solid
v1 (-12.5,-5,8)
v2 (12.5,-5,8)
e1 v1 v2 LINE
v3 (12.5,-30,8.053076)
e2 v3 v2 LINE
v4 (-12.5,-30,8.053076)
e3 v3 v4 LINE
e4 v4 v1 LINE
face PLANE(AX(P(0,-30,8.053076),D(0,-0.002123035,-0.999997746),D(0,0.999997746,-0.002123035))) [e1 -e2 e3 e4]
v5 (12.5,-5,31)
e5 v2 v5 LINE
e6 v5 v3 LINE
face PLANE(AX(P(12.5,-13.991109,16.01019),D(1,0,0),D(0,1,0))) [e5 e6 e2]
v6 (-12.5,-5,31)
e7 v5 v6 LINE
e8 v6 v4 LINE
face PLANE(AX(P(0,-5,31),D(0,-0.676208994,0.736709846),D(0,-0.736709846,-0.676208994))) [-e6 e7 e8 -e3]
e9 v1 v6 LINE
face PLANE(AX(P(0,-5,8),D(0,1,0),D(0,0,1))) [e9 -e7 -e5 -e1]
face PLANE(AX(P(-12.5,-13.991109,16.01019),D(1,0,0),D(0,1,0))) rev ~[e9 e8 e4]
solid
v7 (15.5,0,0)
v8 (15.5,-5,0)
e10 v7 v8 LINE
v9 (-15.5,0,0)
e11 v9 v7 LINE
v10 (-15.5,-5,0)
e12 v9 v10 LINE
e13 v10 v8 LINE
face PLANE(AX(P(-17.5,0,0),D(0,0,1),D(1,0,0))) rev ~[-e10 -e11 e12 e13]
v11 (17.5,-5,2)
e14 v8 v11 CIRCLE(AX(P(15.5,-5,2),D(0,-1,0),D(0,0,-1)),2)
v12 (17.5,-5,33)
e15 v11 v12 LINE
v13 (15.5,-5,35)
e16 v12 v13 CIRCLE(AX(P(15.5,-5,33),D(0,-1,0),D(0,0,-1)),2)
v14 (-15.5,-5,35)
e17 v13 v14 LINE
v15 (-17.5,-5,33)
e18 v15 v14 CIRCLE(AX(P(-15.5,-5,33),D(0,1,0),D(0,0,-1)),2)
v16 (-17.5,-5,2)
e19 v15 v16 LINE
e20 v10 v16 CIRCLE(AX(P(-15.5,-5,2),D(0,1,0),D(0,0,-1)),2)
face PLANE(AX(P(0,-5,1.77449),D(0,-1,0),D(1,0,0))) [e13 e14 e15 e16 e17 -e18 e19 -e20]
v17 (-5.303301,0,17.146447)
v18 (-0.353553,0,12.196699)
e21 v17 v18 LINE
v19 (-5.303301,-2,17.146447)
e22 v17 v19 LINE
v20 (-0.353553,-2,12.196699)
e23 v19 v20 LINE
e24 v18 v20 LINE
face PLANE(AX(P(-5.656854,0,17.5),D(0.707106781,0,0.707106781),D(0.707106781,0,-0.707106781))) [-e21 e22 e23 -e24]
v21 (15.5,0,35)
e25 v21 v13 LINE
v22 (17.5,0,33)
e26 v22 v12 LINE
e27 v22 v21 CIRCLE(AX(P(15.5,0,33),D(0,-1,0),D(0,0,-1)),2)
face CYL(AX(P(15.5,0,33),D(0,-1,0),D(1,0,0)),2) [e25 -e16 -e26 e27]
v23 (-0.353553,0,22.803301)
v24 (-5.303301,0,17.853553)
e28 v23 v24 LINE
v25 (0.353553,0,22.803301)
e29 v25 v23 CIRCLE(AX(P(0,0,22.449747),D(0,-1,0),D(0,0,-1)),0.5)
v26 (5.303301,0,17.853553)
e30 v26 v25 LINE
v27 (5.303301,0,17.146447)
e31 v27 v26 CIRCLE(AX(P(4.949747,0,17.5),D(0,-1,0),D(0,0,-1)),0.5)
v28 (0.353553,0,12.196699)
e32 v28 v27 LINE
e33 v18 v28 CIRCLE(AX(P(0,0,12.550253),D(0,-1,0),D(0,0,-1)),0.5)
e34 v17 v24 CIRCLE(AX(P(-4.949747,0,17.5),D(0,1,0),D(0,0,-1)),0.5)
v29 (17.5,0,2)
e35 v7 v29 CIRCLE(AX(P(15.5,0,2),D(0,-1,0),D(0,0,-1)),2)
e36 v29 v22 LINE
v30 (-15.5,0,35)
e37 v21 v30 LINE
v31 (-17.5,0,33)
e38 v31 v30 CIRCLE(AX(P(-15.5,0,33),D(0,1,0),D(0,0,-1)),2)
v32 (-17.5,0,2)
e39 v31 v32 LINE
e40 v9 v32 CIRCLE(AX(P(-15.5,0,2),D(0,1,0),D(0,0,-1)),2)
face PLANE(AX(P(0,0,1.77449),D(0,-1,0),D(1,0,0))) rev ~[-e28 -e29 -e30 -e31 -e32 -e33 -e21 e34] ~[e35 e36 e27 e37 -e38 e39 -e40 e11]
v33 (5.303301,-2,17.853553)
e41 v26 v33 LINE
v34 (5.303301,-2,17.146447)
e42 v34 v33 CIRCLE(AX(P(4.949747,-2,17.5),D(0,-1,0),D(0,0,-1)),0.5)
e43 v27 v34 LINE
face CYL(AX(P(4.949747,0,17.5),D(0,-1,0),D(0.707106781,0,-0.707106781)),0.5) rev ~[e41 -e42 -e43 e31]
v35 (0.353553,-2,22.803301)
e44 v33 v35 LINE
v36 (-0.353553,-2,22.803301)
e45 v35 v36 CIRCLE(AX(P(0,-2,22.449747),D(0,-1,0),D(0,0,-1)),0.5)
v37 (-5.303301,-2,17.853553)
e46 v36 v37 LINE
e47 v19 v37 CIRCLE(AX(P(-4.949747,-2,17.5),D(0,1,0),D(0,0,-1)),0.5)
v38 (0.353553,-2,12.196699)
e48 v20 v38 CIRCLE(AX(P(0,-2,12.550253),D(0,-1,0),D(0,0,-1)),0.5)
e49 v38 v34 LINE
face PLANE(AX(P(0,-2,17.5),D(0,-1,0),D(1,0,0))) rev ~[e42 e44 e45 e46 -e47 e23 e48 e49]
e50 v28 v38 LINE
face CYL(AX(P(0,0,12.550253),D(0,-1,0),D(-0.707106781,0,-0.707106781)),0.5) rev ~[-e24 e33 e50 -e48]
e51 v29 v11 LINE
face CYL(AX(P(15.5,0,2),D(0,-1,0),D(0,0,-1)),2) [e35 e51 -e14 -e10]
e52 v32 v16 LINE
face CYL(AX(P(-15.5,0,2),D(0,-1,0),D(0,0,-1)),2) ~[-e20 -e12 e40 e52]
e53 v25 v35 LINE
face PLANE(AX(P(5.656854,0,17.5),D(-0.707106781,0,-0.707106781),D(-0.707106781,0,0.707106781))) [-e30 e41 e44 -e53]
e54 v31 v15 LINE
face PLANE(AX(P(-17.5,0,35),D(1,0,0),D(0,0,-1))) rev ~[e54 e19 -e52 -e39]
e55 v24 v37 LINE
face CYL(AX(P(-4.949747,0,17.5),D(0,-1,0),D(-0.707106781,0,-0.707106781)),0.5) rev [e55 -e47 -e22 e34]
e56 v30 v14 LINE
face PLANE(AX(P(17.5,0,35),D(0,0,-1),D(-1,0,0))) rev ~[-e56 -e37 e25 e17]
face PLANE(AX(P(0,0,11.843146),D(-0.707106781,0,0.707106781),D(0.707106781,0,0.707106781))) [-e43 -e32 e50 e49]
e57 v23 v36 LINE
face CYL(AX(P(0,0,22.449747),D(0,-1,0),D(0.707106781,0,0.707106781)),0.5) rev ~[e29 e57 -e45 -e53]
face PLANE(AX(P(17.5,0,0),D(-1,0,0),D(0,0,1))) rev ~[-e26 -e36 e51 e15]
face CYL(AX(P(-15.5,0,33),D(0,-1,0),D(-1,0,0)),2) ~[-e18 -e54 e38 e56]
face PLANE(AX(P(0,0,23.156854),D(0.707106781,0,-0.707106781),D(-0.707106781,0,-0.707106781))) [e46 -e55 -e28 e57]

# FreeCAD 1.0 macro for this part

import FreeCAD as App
import Part
import Sketcher
from FreeCAD import Vector


def edges_at(feature, points):
    """Names of the edges that pass closest to the given points."""
    edges = feature.Shape.Edges
    near = lambda p: min(range(len(edges)), key=lambda i: edges[i].distToShape(Part.Vertex(*p))[0])
    return sorted({f"Edge{near(p) + 1}" for p in points})

doc = App.newDocument("Part")
params = doc.addObject("Spreadsheet::Sheet", "Params")
for row, (alias, value) in enumerate([
    ("sketch1_width", "35 mm"),
    ("pad1_length", "5 mm"),
    ("sketch2_length", "8 mm"),
    ("pocket1_length", "2 mm"),
    ("fillet_radius", "2 mm"),
    ("fillet2_radius", "0.5 mm"),
    ("sketch3_height", "23 mm"),
    ("pad2_length", "25 mm"),
], start=1):
    params.set(f"A{row}", alias)
    params.set(f"B{row}", "=" + value)
    params.setAlias(f"B{row}", alias)

body = doc.addObject("PartDesign::Body", "Body")

# Sketch on XZ plane
sketch1 = doc.addObject("Sketcher::SketchObject", "Sketch")
body.addObject(sketch1)
sketch1.AttachmentSupport = (doc.XZ_Plane, [""])
sketch1.MapMode = "FlatFace"
sketch1.addGeometry([
    Part.LineSegment(Vector(-17.5, 0, 0), Vector(17.5, 0, 0)),
    Part.LineSegment(Vector(17.5, 0, 0), Vector(17.5, 35, 0)),
    Part.LineSegment(Vector(17.5, 35, 0), Vector(-17.5, 35, 0)),
    Part.LineSegment(Vector(-17.5, 35, 0), Vector(-17.5, 0, 0)),
], False)
sketch1.addConstraint([
    Sketcher.Constraint("Coincident", 0, 2, 1, 1),
    Sketcher.Constraint("Coincident", 1, 2, 2, 1),
    Sketcher.Constraint("Coincident", 2, 2, 3, 1),
    Sketcher.Constraint("Coincident", 3, 2, 0, 1),
    Sketcher.Constraint("Horizontal", 0),
    Sketcher.Constraint("Vertical", 1),
    Sketcher.Constraint("Horizontal", 2),
    Sketcher.Constraint("Vertical", 3),
    Sketcher.Constraint("Symmetric", 0, 2, 3, 2, -1, 1),
    Sketcher.Constraint("Equal", 2, 1),
    Sketcher.Constraint("DistanceX", 0, 1, 0, 2, 35.0),
])
sketch1.setExpression("Constraints[10]", "Params.sketch1_width")
pad1 = doc.addObject("PartDesign::Pad", "Pad")
body.addObject(pad1)
pad1.Profile = sketch1
pad1.setExpression("Length", "Params.pad1_length")

# Sketch on XZ plane
sketch2 = doc.addObject("Sketcher::SketchObject", "Sketch001")
body.addObject(sketch2)
sketch2.AttachmentSupport = (doc.XZ_Plane, [""])
sketch2.MapMode = "FlatFace"
sketch2.addGeometry([
    Part.LineSegment(Vector(-5.656854, 17.5, 0), Vector(0, 11.843146, 0)),
    Part.LineSegment(Vector(0, 11.843146, 0), Vector(5.656854, 17.5, 0)),
    Part.LineSegment(Vector(5.656854, 17.5, 0), Vector(0, 23.156854, 0)),
    Part.LineSegment(Vector(0, 23.156854, 0), Vector(-5.656854, 17.5, 0)),
], False)
sketch2.addConstraint([
    Sketcher.Constraint("Coincident", 0, 2, 1, 1),
    Sketcher.Constraint("Coincident", 1, 2, 2, 1),
    Sketcher.Constraint("Coincident", 2, 2, 3, 1),
    Sketcher.Constraint("Coincident", 3, 2, 0, 1),
    Sketcher.Constraint("Symmetric", 1, 2, 3, 2, -2),
    Sketcher.Constraint("PointOnObject", 0, 2, -2),
    Sketcher.Constraint("PointOnObject", 2, 2, -2),
    Sketcher.Constraint("Perpendicular", 0, 1),
    Sketcher.Constraint("Perpendicular", 1, 2),
    Sketcher.Constraint("Distance", 0, 8.0),
    Sketcher.Constraint("DistanceY", -1, 1, 1, 2, 17.5),
])
sketch2.setExpression("Constraints[9]", "Params.sketch2_length")
pocket1 = doc.addObject("PartDesign::Pocket", "Pocket")
body.addObject(pocket1)
pocket1.Profile = sketch2
pocket1.setExpression("Length", "Params.pocket1_length")
pocket1.Reversed = True
doc.recompute()

fillet = doc.addObject("PartDesign::Fillet", "Fillet")
body.addObject(fillet)
fillet.Base = (pocket1, edges_at(pocket1, [
    (-17.5, -2.5, 35),
    (17.5, -2.5, 35),
    (-17.5, -2.5, 0),
    (17.5, -2.5, 0),
]))
fillet.setExpression("Radius", "Params.fillet_radius")
doc.recompute()

fillet2 = doc.addObject("PartDesign::Fillet", "Fillet001")
body.addObject(fillet2)
fillet2.Base = (fillet, edges_at(fillet, [
    (5.657, -1, 17.5),
    (0, -1, 23.157),
    (-5.657, -1, 17.5),
    (0, -1, 11.843),
]))
fillet2.setExpression("Radius", "Params.fillet2_radius")
body2 = doc.addObject("PartDesign::Body", "Body001")

# Sketch on YZ plane
sketch3 = doc.addObject("Sketcher::SketchObject", "Sketch002")
body2.addObject(sketch3)
sketch3.AttachmentSupport = (doc.getObject("YZ_Plane001"), [""])
sketch3.MapMode = "FlatFace"
sketch3.addGeometry([
    Part.LineSegment(Vector(-30, 8.053076, 0), Vector(-5, 8, 0)),
    Part.LineSegment(Vector(-5, 8, 0), Vector(-5, 31, 0)),
    Part.LineSegment(Vector(-5, 31, 0), Vector(-30, 8.053076, 0)),
], False)
sketch3.addConstraint([
    Sketcher.Constraint("Coincident", 0, 2, 1, 1),
    Sketcher.Constraint("Coincident", 1, 2, 2, 1),
    Sketcher.Constraint("Coincident", 2, 2, 0, 1),
    Sketcher.Constraint("Vertical", 1),
    Sketcher.Constraint("DistanceY", 1, 1, 1, 2, 23.0),
    Sketcher.Constraint("DistanceX", 0, 2, -1, 1, 5.0),
    Sketcher.Constraint("DistanceY", -1, 1, 0, 2, 8.0),
    Sketcher.Constraint("DistanceX", 2, 2, -1, 1, 30.0),
    Sketcher.Constraint("Distance", 2, 33.934663),
])
sketch3.setExpression("Constraints[4]", "Params.sketch3_height")
pad2 = doc.addObject("PartDesign::Pad", "Pad001")
body2.addObject(pad2)
pad2.Profile = sketch3
pad2.setExpression("Length", "Params.pad2_length")
pad2.Midplane = True

doc.recompute()
